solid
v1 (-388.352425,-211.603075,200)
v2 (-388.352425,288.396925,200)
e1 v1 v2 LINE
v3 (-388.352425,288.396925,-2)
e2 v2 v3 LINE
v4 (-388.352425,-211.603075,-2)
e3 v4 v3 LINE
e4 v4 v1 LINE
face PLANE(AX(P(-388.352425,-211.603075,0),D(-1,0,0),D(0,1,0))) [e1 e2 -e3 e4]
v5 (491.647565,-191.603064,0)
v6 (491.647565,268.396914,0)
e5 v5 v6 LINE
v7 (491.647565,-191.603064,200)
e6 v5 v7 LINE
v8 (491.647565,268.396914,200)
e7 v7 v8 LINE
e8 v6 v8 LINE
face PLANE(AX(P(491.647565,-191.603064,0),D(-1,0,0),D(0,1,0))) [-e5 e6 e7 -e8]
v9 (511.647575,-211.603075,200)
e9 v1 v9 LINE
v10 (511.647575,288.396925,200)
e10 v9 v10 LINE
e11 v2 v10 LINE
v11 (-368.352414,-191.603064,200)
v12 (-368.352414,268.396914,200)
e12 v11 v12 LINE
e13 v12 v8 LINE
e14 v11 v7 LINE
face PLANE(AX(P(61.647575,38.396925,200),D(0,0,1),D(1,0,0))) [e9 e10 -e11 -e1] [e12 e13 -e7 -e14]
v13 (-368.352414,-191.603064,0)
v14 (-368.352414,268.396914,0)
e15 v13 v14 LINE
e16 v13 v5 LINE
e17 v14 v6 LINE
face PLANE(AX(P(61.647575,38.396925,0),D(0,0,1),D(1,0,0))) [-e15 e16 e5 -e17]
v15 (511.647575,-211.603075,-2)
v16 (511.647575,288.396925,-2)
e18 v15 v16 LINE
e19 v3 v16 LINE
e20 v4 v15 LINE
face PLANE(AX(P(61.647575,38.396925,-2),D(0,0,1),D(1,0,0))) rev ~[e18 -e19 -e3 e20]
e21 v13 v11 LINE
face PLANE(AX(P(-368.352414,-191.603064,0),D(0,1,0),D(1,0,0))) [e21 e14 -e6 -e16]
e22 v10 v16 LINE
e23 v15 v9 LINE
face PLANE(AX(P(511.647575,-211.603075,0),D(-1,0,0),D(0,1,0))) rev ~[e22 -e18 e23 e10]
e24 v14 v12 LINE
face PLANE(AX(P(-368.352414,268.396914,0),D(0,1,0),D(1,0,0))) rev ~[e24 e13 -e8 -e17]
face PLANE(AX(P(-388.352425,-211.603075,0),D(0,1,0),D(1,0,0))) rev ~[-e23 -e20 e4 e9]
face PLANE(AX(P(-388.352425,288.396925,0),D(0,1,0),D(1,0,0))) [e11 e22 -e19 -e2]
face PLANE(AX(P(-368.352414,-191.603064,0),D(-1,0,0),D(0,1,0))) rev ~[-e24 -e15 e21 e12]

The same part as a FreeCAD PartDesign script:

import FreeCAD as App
import Part
import Sketcher

V = App.Vector

doc = App.newDocument("Part")
params = doc.addObject("Spreadsheet::Sheet", "Params")
for row, (alias, value) in enumerate([
    ("sketch1_width", "900 mm"),
    ("sketch1_height", "500 mm"),
    ("pad1_length", "2 mm"),
    ("sketch2_width", "900 mm"),
    ("sketch2_height", "500 mm"),
    ("pad2_length", "200 mm"),
], start=1):
    params.set(f"A{row}", alias)
    params.set(f"B{row}", "=" + value)
    params.setAlias(f"B{row}", alias)

body = doc.addObject("PartDesign::Body", "Body")

# Sketch on XY plane
sketch1 = body.newObject("Sketcher::SketchObject", "Sketch")
sketch1.AttachmentSupport = (doc.getObject("XY_Plane"), [""])
sketch1.MapMode = "FlatFace"
sketch1.addGeometry(Part.LineSegment(V(-388.352425, 288.396925, 0), V(-388.352425, -211.603075, 0)), False)
sketch1.addGeometry(Part.LineSegment(V(-388.352425, -211.603075, 0), V(511.647575, -211.603075, 0)), False)
sketch1.addGeometry(Part.LineSegment(V(511.647575, -211.603075, 0), V(511.647575, 288.396925, 0)), False)
sketch1.addGeometry(Part.LineSegment(V(511.647575, 288.396925, 0), V(-388.352425, 288.396925, 0)), False)
sketch1.addConstraint(Sketcher.Constraint("Coincident", 0, 2, 1, 1))
sketch1.addConstraint(Sketcher.Constraint("Coincident", 1, 2, 2, 1))
sketch1.addConstraint(Sketcher.Constraint("Coincident", 2, 2, 3, 1))
sketch1.addConstraint(Sketcher.Constraint("Coincident", 3, 2, 0, 1))
sketch1.addConstraint(Sketcher.Constraint("Vertical", 0))
sketch1.addConstraint(Sketcher.Constraint("Horizontal", 1))
sketch1.addConstraint(Sketcher.Constraint("Vertical", 2))
sketch1.addConstraint(Sketcher.Constraint("Horizontal", 3))
sketch1.addConstraint(Sketcher.Constraint("DistanceX", 1, 1, 1, 2, 900.0))
sketch1.addConstraint(Sketcher.Constraint("DistanceY", 0, 2, 0, 1, 500.0))
sketch1.addConstraint(Sketcher.Constraint("DistanceX", 0, 2, -1, 1, 388.352425))
sketch1.addConstraint(Sketcher.Constraint("DistanceY", 0, 2, -1, 1, 211.603075))
sketch1.setExpression("Constraints[8]", "Params.sketch1_width")
sketch1.setExpression("Constraints[9]", "Params.sketch1_height")
pad1 = body.newObject("PartDesign::Pad", "Pad")
pad1.Profile = sketch1
pad1.setExpression("Length", "Params.pad1_length")
pad1.Reversed = True

# Sketch on XY plane
sketch2 = body.newObject("Sketcher::SketchObject", "Sketch001")
sketch2.AttachmentSupport = (doc.getObject("XY_Plane"), [""])
sketch2.MapMode = "FlatFace"
sketch2.addGeometry(Part.LineSegment(V(-388.352425, 288.396925, 0), V(-388.352425, -211.603075, 0)), False)
sketch2.addGeometry(Part.LineSegment(V(-388.352425, -211.603075, 0), V(511.647575, -211.603075, 0)), False)
sketch2.addGeometry(Part.LineSegment(V(511.647575, -211.603075, 0), V(511.647575, 288.396925, 0)), False)
sketch2.addGeometry(Part.LineSegment(V(511.647575, 288.396925, 0), V(-388.352425, 288.396925, 0)), False)
sketch2.addGeometry(Part.LineSegment(V(491.647565, -191.603064, 0), V(-368.352414, -191.603064, 0)), False)
sketch2.addGeometry(Part.LineSegment(V(-368.352414, -191.603064, 0), V(-368.352414, 268.396914, 0)), False)
sketch2.addGeometry(Part.LineSegment(V(-368.352414, 268.396914, 0), V(491.647565, 268.396914, 0)), False)
sketch2.addGeometry(Part.LineSegment(V(491.647565, 268.396914, 0), V(491.647565, -191.603064, 0)), False)
sketch2.addConstraint(Sketcher.Constraint("Coincident", 0, 2, 1, 1))
sketch2.addConstraint(Sketcher.Constraint("Coincident", 1, 2, 2, 1))
sketch2.addConstraint(Sketcher.Constraint("Coincident", 2, 2, 3, 1))
sketch2.addConstraint(Sketcher.Constraint("Coincident", 3, 2, 0, 1))
sketch2.addConstraint(Sketcher.Constraint("Coincident", 4, 2, 5, 1))
sketch2.addConstraint(Sketcher.Constraint("Coincident", 5, 2, 6, 1))
sketch2.addConstraint(Sketcher.Constraint("Coincident", 6, 2, 7, 1))
sketch2.addConstraint(Sketcher.Constraint("Coincident", 7, 2, 4, 1))
sketch2.addConstraint(Sketcher.Constraint("Vertical", 0))
sketch2.addConstraint(Sketcher.Constraint("Horizontal", 1))
sketch2.addConstraint(Sketcher.Constraint("Vertical", 2))
sketch2.addConstraint(Sketcher.Constraint("Horizontal", 3))
sketch2.addConstraint(Sketcher.Constraint("Horizontal", 4))
sketch2.addConstraint(Sketcher.Constraint("Vertical", 5))
sketch2.addConstraint(Sketcher.Constraint("Horizontal", 6))
sketch2.addConstraint(Sketcher.Constraint("Vertical", 7))
sketch2.addConstraint(Sketcher.Constraint("DistanceX", 1, 1, 1, 2, 900.0))
sketch2.addConstraint(Sketcher.Constraint("DistanceY", 0, 2, 0, 1, 500.0))
sketch2.addConstraint(Sketcher.Constraint("DistanceX", 4, 2, 4, 1, 859.999978))
sketch2.addConstraint(Sketcher.Constraint("DistanceY", 5, 1, 5, 2, 459.999978))
sketch2.addConstraint(Sketcher.Constraint("DistanceX", 0, 2, 4, 2, 20.000011))
sketch2.addConstraint(Sketcher.Constraint("DistanceY", 0, 2, 4, 2, 20.000011))
sketch2.addConstraint(Sketcher.Constraint("DistanceX", 0, 2, -1, 1, 388.352425))
sketch2.addConstraint(Sketcher.Constraint("DistanceY", 0, 2, -1, 1, 211.603075))
sketch2.setExpression("Constraints[16]", "Params.sketch2_width")
sketch2.setExpression("Constraints[17]", "Params.sketch2_height")
pad2 = body.newObject("PartDesign::Pad", "Pad001")
pad2.Profile = sketch2
pad2.setExpression("Length", "Params.pad2_length")

doc.recompute()
